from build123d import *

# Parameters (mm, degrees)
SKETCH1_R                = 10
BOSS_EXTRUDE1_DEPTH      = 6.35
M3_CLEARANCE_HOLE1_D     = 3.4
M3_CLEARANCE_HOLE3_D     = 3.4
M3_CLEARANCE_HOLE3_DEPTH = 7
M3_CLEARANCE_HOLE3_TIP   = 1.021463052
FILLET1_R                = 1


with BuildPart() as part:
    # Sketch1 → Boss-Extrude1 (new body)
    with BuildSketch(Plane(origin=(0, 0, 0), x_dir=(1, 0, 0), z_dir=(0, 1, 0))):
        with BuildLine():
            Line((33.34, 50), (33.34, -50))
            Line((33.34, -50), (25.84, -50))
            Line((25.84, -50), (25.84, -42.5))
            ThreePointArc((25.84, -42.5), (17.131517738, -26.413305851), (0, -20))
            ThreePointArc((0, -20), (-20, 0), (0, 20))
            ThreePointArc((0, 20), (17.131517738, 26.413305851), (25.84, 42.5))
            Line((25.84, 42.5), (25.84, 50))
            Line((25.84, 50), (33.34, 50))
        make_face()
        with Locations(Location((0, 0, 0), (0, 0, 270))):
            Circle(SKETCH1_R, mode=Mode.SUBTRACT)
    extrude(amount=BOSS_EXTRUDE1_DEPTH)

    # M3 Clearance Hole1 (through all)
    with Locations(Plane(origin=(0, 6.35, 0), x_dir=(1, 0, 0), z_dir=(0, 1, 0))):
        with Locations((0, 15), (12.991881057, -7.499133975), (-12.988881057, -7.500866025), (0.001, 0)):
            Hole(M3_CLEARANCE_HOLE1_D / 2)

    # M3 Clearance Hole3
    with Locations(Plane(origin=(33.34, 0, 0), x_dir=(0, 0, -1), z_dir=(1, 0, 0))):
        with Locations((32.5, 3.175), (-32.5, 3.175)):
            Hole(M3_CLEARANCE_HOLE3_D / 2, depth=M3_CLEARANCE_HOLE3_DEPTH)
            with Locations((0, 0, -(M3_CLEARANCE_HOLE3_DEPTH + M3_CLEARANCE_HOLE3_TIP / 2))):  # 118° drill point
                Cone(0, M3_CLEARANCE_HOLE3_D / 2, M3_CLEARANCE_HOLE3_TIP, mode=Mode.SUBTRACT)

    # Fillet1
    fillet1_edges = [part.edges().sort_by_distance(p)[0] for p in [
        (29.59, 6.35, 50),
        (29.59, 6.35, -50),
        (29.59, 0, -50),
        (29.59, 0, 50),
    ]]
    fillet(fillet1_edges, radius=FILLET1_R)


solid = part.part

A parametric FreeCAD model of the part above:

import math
import FreeCAD as App
import Part
import Sketcher
Q = App.Units.Quantity


def edges_at(feature, points):
    """Names of the edges that pass closest to the given points."""
    edges = feature.Shape.Edges
    near = lambda p: min(range(len(edges)), key=lambda i: edges[i].distToShape(Part.Vertex(*p))[0])
    return sorted({f"Edge{near(p) + 1}" for p in points})

doc = App.newDocument("Part")
body = doc.addObject("PartDesign::Body", "Body")

sketch1 = doc.addObject("Sketcher::SketchObject", "Sketch")
body.addObject(sketch1)
sketch1.AttachmentSupport = (doc.XZ_Plane, [""])
sketch1.MapMode = "FlatFace"
sketch1.addGeometry([
    Part.LineSegment(App.Vector(33, 50, 0), App.Vector(33, -50, 0)),
    Part.LineSegment(App.Vector(33, -50, 0), App.Vector(26, -50, 0)),
    Part.LineSegment(App.Vector(26, -50, 0), App.Vector(26, -42, 0)),
    Part.ArcOfCircle(Part.Circle(App.Vector(0, -46, 0), App.Vector(0, 0, 1), 26), math.radians(8), math.radians(90)),
    Part.ArcOfCircle(Part.Circle(App.Vector(0, 0, 0), App.Vector(0, 0, 1), 20), math.radians(90), math.radians(270)),
    Part.ArcOfCircle(Part.Circle(App.Vector(0, 46, 0), App.Vector(0, 0, 1), 26), math.radians(-90), math.radians(-8)),
    Part.LineSegment(App.Vector(26, 42, 0), App.Vector(26, 50, 0)),
    Part.LineSegment(App.Vector(26, 50, 0), App.Vector(33, 50, 0)),
    Part.Circle(App.Vector(0, 0, 0), App.Vector(0, 0, 1), 10),
], False)
sketch1.addConstraint([
    Sketcher.Constraint("Coincident", 0, 2, 1, 1),
    Sketcher.Constraint("Coincident", 1, 2, 2, 1),
    Sketcher.Constraint("Coincident", 2, 2, 3, 1),
    Sketcher.Constraint("Tangent", 3, 2, 4, 2),
    Sketcher.Constraint("Tangent", 4, 1, 5, 1),
    Sketcher.Constraint("Coincident", 5, 2, 6, 1),
    Sketcher.Constraint("Coincident", 6, 2, 7, 1),
    Sketcher.Constraint("Coincident", 7, 2, 0, 1),
    Sketcher.Constraint("Vertical", 0),
    Sketcher.Constraint("Horizontal", 1),
    Sketcher.Constraint("Vertical", 2),
    Sketcher.Constraint("Vertical", 6),
    Sketcher.Constraint("Horizontal", 7),
    Sketcher.Constraint("Coincident", 4, 3, -1, 1),
    Sketcher.Constraint("Coincident", 8, 3, -1, 1),
    Sketcher.Constraint("Equal", 3, 5),
    Sketcher.Constraint("Symmetric", 2, 2, 5, 2, -1),
    Sketcher.Constraint("PointOnObject", 3, 3, -2),
    Sketcher.Constraint("Equal", 7, 2),
    Sketcher.Constraint("Equal", 2, 6),
    Sketcher.Constraint("Diameter", 8, Q("20 mm")),
    Sketcher.Constraint("Radius", 4, Q("20 mm")),
    Sketcher.Constraint("DistanceY", 0, 2, 0, 1, Q("100 mm")),
    Sketcher.Constraint("DistanceX", 1, 2, 1, 1, Q("7.5 mm")),
    Sketcher.Constraint("DistanceX", -1, 1, 0, 2, Q("33.34 mm")),
])
pad1 = doc.addObject("PartDesign::Pad", "Pad")
body.addObject(pad1)
pad1.Profile = sketch1
pad1.Length = 6.35
pad1.Reversed = True

sketch2 = doc.addObject("Sketcher::SketchObject", "Sketch001")
body.addObject(sketch2)
sketch2.AttachmentSupport = (doc.XZ_Plane, [""])
sketch2.MapMode = "FlatFace"
sketch2.AttachmentOffset = App.Placement(App.Vector(0, 0, -6.35), App.Rotation())
sketch2.addGeometry([
    Part.Circle(App.Vector(0, -15, 0), App.Vector(0, 0, 1), 1.7),
    Part.Circle(App.Vector(13, 7.5, 0), App.Vector(0, 0, 1), 1.7),
    Part.Circle(App.Vector(-13, 7.5, 0), App.Vector(0, 0, 1), 1.7),
    Part.Circle(App.Vector(0, 0, 0), App.Vector(0, 0, 1), 1.7),
], False)
sketch2.addConstraint([
    Sketcher.Constraint("Equal", 0, 1),
    Sketcher.Constraint("Equal", 1, 2),
    Sketcher.Constraint("Equal", 2, 3),
    Sketcher.Constraint("PointOnObject", 0, 3, -2),
    Sketcher.Constraint("PointOnObject", 3, 3, -1),
    Sketcher.Constraint("Diameter", 0, Q("3.4 mm")),
    Sketcher.Constraint("DistanceY", 0, 3, -1, 1, Q("15 mm")),
    Sketcher.Constraint("DistanceX", -1, 1, 3, 3, Q("0.001 mm")),
    Sketcher.Constraint("DistanceX", -1, 1, 1, 3, Q("12.991881 mm")),
    Sketcher.Constraint("DistanceX", 2, 3, -1, 1, Q("12.988881 mm")),
    Sketcher.Constraint("DistanceY", -1, 1, 1, 3, Q("7.499134 mm")),
    Sketcher.Constraint("DistanceY", -1, 1, 2, 3, Q("7.500866 mm")),
])
doc.recompute()
hole = doc.addObject("PartDesign::Hole", "Hole")
body.addObject(hole)
hole.Profile = sketch2
hole.ThreadType = "None"
hole.Diameter = 3.4
hole.DepthType = "ThroughAll"
hole.Reversed = True

sketch3 = doc.addObject("Sketcher::SketchObject", "Sketch002")
body.addObject(sketch3)
sketch3.AttachmentSupport = (doc.YZ_Plane, [""])
sketch3.MapMode = "FlatFace"
sketch3.AttachmentOffset = App.Placement(App.Vector(0, 0, 33.34), App.Rotation())
sketch3.addGeometry([
    Part.Circle(App.Vector(3.2, -32.5, 0), App.Vector(0, 0, 1), 1.7),
    Part.Circle(App.Vector(3.2, 32.5, 0), App.Vector(0, 0, 1), 1.7),
], False)
sketch3.addConstraint([
    Sketcher.Constraint("Equal", 0, 1),
    Sketcher.Constraint("Symmetric", 0, 3, 1, 3, -1),
    Sketcher.Constraint("Diameter", 0, Q("3.4 mm")),
    Sketcher.Constraint("DistanceY", 0, 3, 1, 3, Q("65 mm")),
    Sketcher.Constraint("DistanceX", -1, 1, 0, 3, Q("3.175 mm")),
])
doc.recompute()
hole2 = doc.addObject("PartDesign::Hole", "Hole001")
body.addObject(hole2)
hole2.Profile = sketch3
hole2.ThreadType = "None"
hole2.Diameter = 3.4
hole2.DepthType = "Dimension"
hole2.Depth = 7
hole2.DrillPoint = "Angled"
hole2.DrillPointAngle = 118
doc.recompute()

fillet = doc.addObject("PartDesign::Fillet", "Fillet")
body.addObject(fillet)
fillet.Base = (hole2, edges_at(hole2, [
    (29.59, 6.35, 50),
    (29.59, 6.35, -50),
    (29.59, 0, -50),
    (29.59, 0, 50),
]))
fillet.Radius = 1

doc.recompute()
